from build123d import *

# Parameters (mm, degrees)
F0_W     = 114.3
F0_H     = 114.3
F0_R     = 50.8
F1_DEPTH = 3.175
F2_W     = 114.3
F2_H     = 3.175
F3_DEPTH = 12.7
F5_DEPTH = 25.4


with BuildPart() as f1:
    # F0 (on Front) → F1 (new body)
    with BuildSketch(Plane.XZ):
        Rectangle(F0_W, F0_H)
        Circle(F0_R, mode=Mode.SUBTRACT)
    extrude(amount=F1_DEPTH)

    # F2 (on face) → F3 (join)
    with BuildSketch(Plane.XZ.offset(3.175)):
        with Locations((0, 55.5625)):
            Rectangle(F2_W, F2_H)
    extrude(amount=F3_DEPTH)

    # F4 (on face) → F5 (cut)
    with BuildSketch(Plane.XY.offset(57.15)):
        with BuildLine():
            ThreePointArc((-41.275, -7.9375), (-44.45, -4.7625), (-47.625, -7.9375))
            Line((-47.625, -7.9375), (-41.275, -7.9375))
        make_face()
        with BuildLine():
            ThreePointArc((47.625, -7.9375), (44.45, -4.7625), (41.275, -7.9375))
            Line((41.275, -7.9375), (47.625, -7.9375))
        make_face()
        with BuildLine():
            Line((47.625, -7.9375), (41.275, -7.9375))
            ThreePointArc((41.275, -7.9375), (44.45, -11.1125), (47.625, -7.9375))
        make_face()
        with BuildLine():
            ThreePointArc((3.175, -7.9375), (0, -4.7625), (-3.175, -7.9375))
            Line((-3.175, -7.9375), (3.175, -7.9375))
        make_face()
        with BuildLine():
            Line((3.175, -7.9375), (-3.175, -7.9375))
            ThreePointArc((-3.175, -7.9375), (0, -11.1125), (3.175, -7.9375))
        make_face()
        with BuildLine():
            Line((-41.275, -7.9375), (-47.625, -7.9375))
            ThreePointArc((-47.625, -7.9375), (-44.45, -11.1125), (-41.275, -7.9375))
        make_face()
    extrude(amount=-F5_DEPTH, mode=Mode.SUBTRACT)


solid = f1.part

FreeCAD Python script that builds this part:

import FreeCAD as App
import Part
import Sketcher
from FreeCAD import Vector
Q = App.Units.Quantity


def add_polygon(sketch, points):
    """Adds a closed chain of lines whose ends are joined by coincident constraints."""
    first, n = sketch.GeometryCount, len(points)
    for a, b in zip(points, points[1:] + points[:1]):
        sketch.addGeometry(Part.LineSegment(App.Vector(*a, 0), App.Vector(*b, 0)), False)
    for i in range(n):
        sketch.addConstraint(Sketcher.Constraint("Coincident", first + i, 2, first + (i + 1) % n, 1))

doc = App.newDocument("Part")
body = doc.addObject("PartDesign::Body", "Body")

# Sketch on XZ plane
sketch1 = body.newObject("Sketcher::SketchObject", "Sketch")
sketch1.AttachmentSupport = (doc.getObject("XZ_Plane"), [""])
sketch1.MapMode = "FlatFace"
add_polygon(sketch1, [(-57, 57), (-57, -57), (57, -57), (57, 57)])  # lines 0-3
sketch1.addGeometry(Part.Circle(Vector(0, 0, 0), Vector(0, 0, 1), 51), False)  # 4
sketch1.addConstraint([
    Sketcher.Constraint("Vertical", 0),
    Sketcher.Constraint("Horizontal", 1),
    Sketcher.Constraint("Vertical", 2),
    Sketcher.Constraint("Horizontal", 3),
    Sketcher.Constraint("Coincident", 4, 3, -1, 1),
    Sketcher.Constraint("Symmetric", 0, 2, 2, 2, -1, 1),
    Sketcher.Constraint("Equal", 3, 0),
    Sketcher.Constraint("Diameter", 4, Q("4 in")),
    Sketcher.Constraint("DistanceX", 1, 1, 1, 2, Q("4.5 in")),
])
pad1 = body.newObject("PartDesign::Pad", "Pad")
pad1.Profile = sketch1
pad1.Length = Q("0.125 in")

# Sketch on XZ plane
sketch2 = body.newObject("Sketcher::SketchObject", "Sketch001")
sketch2.AttachmentSupport = (doc.getObject("XZ_Plane"), [""])
sketch2.MapMode = "FlatFace"
sketch2.AttachmentOffset = App.Placement(Vector(0, 0, 0.125 * 25.4), App.Rotation())
add_polygon(sketch2, [(-57.1, 57.1), (-57.1, 54), (57.1, 54), (57.1, 57.1)])  # lines 0-3
sketch2.addConstraint([
    Sketcher.Constraint("Vertical", 0),
    Sketcher.Constraint("Horizontal", 1),
    Sketcher.Constraint("Vertical", 2),
    Sketcher.Constraint("Horizontal", 3),
    Sketcher.Constraint("DistanceX", 1, 1, 1, 2, Q("4.5 in")),
    Sketcher.Constraint("DistanceY", 0, 2, 0, 1, Q("0.125 in")),
    Sketcher.Constraint("DistanceX", 0, 2, -1, 1, Q("2.25 in")),
    Sketcher.Constraint("DistanceY", -1, 1, 2, 2, Q("2.25 in")),
])
pad2 = body.newObject("PartDesign::Pad", "Pad001")
pad2.Profile = sketch2
pad2.Length = Q("0.5 in")

# Sketch on XY plane
sketch3 = body.newObject("Sketcher::SketchObject", "Sketch002")
sketch3.AttachmentSupport = (doc.getObject("XY_Plane"), [""])
sketch3.MapMode = "FlatFace"
sketch3.AttachmentOffset = App.Placement(Vector(0, 0, 2.25 * 25.4), App.Rotation())
sketch3.addGeometry([
    Part.Circle(Vector(-44.5, -7.9, 0), Vector(0, 0, 1), 3.2),
    Part.Circle(Vector(44.5, -7.9, 0), Vector(0, 0, 1), 3.2),
    Part.Circle(Vector(0, -7.9, 0), Vector(0, 0, 1), 3.2),
], False)
sketch3.addConstraint([
    Sketcher.Constraint("Equal", 0, 1),
    Sketcher.Constraint("Equal", 1, 2),
    Sketcher.Constraint("Symmetric", 0, 3, 1, 3, -2),
    Sketcher.Constraint("PointOnObject", 2, 3, -2),
    Sketcher.Constraint("Horizontal", 1, 3, 2, 3),
    Sketcher.Constraint("Diameter", 0, Q("0.25 in")),
    Sketcher.Constraint("DistanceX", 0, 3, 1, 3, Q("3.5 in")),
    Sketcher.Constraint("DistanceY", 0, 3, -1, 1, Q("0.3125 in")),
])
pocket1 = body.newObject("PartDesign::Pocket", "Pocket")
pocket1.Profile = sketch3
pocket1.Length = Q("1 in")

doc.recompute()
